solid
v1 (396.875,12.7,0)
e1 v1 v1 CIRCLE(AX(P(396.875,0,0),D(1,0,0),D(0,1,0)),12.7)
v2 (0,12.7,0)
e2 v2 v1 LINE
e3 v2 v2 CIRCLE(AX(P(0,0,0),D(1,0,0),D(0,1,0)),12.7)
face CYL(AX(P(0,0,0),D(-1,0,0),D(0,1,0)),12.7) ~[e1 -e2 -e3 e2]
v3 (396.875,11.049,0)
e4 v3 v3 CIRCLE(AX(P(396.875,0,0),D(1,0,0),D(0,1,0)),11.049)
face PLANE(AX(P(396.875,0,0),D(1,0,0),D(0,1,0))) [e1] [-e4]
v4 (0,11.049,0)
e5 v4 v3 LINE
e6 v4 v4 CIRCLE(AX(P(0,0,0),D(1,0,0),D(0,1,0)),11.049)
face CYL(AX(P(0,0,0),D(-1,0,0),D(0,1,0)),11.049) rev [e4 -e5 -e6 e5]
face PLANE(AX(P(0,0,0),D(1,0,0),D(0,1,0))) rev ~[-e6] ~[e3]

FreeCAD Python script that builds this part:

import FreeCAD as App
import Part
import Sketcher
from FreeCAD import Vector
Q = App.Units.Quantity

doc = App.newDocument("Part")
body = doc.addObject("PartDesign::Body", "Body")

# Sketch on YZ plane
sketch1 = doc.addObject("Sketcher::SketchObject", "Sketch")
body.addObject(sketch1)
sketch1.AttachmentSupport = (doc.YZ_Plane, [""])
sketch1.MapMode = "FlatFace"
sketch1.addGeometry(Part.Circle(Vector(0, 0, 0), Vector(0, 0, 1), 13), False)
sketch1.addGeometry(Part.Circle(Vector(0, 0, 0), Vector(0, 0, 1), 11), False)
sketch1.addConstraint(Sketcher.Constraint("Coincident", 0, 3, -1, 1))
sketch1.addConstraint(Sketcher.Constraint("Coincident", 1, 3, -1, 1))
sketch1.addConstraint(Sketcher.Constraint("Diameter", 0, Q("1 in")))
sketch1.addConstraint(Sketcher.Constraint("Diameter", 1, Q("0.87 in")))
pad1 = doc.addObject("PartDesign::Pad", "Pad")
body.addObject(pad1)
pad1.Profile = sketch1
pad1.Length = Q("15.625 in")

doc.recompute()
